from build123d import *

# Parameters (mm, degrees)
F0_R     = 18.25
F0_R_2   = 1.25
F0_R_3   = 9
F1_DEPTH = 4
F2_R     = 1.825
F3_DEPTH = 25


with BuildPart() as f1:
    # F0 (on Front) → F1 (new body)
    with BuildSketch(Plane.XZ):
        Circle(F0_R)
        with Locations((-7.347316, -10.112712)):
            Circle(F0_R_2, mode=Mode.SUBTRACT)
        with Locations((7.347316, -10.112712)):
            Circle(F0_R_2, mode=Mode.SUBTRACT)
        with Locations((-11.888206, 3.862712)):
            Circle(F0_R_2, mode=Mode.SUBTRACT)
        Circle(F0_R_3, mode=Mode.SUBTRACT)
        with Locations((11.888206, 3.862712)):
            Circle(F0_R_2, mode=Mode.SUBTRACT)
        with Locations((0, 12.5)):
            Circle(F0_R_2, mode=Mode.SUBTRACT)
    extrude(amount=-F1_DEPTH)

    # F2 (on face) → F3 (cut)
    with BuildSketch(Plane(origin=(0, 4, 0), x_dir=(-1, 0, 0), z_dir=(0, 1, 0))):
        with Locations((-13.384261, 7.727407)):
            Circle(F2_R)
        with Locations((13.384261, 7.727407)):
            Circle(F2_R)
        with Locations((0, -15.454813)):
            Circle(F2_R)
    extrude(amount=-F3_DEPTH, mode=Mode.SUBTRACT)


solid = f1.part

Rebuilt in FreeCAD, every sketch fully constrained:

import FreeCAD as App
import Part
import Sketcher

V = App.Vector

doc = App.newDocument("Part")
body = doc.addObject("PartDesign::Body", "Body")

# Sketch on XZ plane
sketch1 = body.newObject("Sketcher::SketchObject", "Sketch")
sketch1.AttachmentSupport = (doc.getObject("XZ_Plane"), [""])
sketch1.MapMode = "FlatFace"
sketch1.addGeometry(Part.Circle(V(0, 0, 0), V(0, 0, 1), 18.2), False)
sketch1.addGeometry(Part.Circle(V(-7.3, -10.1, 0), V(0, 0, 1), 1.2), False)
sketch1.addGeometry(Part.Circle(V(7.3, -10.1, 0), V(0, 0, 1), 1.2), False)
sketch1.addGeometry(Part.Circle(V(0, 0, 0), V(0, 0, 1), 9), False)
sketch1.addGeometry(Part.Circle(V(-11.9, 3.9, 0), V(0, 0, 1), 1.2), False)
sketch1.addGeometry(Part.Circle(V(11.9, 3.9, 0), V(0, 0, 1), 1.2), False)
sketch1.addGeometry(Part.Circle(V(0, 12.5, 0), V(0, 0, 1), 1.2), False)
sketch1.addConstraint(Sketcher.Constraint("Coincident", 0, 3, -1, 1))
sketch1.addConstraint(Sketcher.Constraint("Coincident", 3, 3, -1, 1))
sketch1.addConstraint(Sketcher.Constraint("Equal", 1, 2))
sketch1.addConstraint(Sketcher.Constraint("Equal", 2, 4))
sketch1.addConstraint(Sketcher.Constraint("Equal", 4, 5))
sketch1.addConstraint(Sketcher.Constraint("Equal", 5, 6))
sketch1.addConstraint(Sketcher.Constraint("Symmetric", 1, 3, 2, 3, -2))
sketch1.addConstraint(Sketcher.Constraint("Symmetric", 4, 3, 5, 3, -2))
sketch1.addConstraint(Sketcher.Constraint("PointOnObject", 6, 3, -2))
sketch1.addConstraint(Sketcher.Constraint("Diameter", 3, 18.0))
sketch1.addConstraint(Sketcher.Constraint("Diameter", 0, 36.5))
sketch1.addConstraint(Sketcher.Constraint("Diameter", 1, 2.5))
sketch1.addConstraint(Sketcher.Constraint("DistanceY", -1, 1, 6, 3, 12.5))
sketch1.addConstraint(Sketcher.Constraint("DistanceX", 4, 3, 1, 3, 4.54089))
sketch1.addConstraint(Sketcher.Constraint("DistanceX", 4, 3, 2, 3, 19.235522))
sketch1.addConstraint(Sketcher.Constraint("DistanceY", 1, 3, -1, 1, 10.112712))
sketch1.addConstraint(Sketcher.Constraint("DistanceY", -1, 1, 4, 3, 3.862712))
pad1 = body.newObject("PartDesign::Pad", "Pad")
pad1.Profile = sketch1
pad1.Length = 4
pad1.Reversed = True

# Sketch on XZ plane
sketch2 = body.newObject("Sketcher::SketchObject", "Sketch001")
sketch2.AttachmentSupport = (doc.getObject("XZ_Plane"), [""])
sketch2.MapMode = "FlatFace"
sketch2.AttachmentOffset = App.Placement(V(0, 0, -4), App.Rotation())
sketch2.addGeometry(Part.Circle(V(13.4, 7.7, 0), V(0, 0, 1), 1.8), False)
sketch2.addGeometry(Part.Circle(V(-13.4, 7.7, 0), V(0, 0, 1), 1.8), False)
sketch2.addGeometry(Part.Circle(V(0, -15.5, 0), V(0, 0, 1), 1.8), False)
sketch2.addConstraint(Sketcher.Constraint("Equal", 0, 1))
sketch2.addConstraint(Sketcher.Constraint("Equal", 1, 2))
sketch2.addConstraint(Sketcher.Constraint("Symmetric", 0, 3, 1, 3, -2))
sketch2.addConstraint(Sketcher.Constraint("PointOnObject", 2, 3, -2))
sketch2.addConstraint(Sketcher.Constraint("Diameter", 0, 3.65))
sketch2.addConstraint(Sketcher.Constraint("DistanceX", -1, 1, 0, 3, 13.384261))
sketch2.addConstraint(Sketcher.Constraint("DistanceY", 2, 3, 0, 3, 23.18222))
sketch2.addConstraint(Sketcher.Constraint("DistanceY", -1, 1, 0, 3, 7.727407))
pocket1 = body.newObject("PartDesign::Pocket", "Pocket")
pocket1.Profile = sketch2
pocket1.Length = 25
pocket1.Reversed = True

doc.recompute()
